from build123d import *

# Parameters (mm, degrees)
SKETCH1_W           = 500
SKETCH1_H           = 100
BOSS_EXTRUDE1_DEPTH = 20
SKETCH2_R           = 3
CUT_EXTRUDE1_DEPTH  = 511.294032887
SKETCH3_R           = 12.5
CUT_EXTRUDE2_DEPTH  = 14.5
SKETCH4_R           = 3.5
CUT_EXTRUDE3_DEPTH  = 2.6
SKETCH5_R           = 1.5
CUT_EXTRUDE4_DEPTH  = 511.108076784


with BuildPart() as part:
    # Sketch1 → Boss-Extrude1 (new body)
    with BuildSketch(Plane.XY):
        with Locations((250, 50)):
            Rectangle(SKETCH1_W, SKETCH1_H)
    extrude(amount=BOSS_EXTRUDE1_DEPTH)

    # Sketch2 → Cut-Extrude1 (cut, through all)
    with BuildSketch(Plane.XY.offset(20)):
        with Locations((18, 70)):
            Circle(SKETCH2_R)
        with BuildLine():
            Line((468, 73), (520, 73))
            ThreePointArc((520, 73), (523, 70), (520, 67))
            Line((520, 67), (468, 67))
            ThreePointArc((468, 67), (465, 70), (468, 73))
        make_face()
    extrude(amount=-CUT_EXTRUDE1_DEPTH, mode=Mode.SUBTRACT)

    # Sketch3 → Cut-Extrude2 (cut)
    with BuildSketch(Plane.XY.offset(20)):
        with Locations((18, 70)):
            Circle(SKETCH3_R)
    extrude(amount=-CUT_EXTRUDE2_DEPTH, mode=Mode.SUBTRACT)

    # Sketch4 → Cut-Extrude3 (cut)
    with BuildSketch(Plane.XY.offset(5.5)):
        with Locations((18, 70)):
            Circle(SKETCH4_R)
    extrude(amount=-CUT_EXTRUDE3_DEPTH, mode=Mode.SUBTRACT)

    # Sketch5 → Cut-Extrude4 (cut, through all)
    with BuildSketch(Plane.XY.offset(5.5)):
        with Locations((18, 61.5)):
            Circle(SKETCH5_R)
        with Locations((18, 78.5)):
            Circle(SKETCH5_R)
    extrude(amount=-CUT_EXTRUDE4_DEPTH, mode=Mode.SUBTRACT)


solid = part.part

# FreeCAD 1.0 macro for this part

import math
import FreeCAD as App
import Part
import Sketcher
from FreeCAD import Vector
Q = App.Units.Quantity

doc = App.newDocument("Part")
body = doc.addObject("PartDesign::Body", "Body")

# Sketch on XY plane
sketch1 = body.newObject("Sketcher::SketchObject", "Sketch")
sketch1.AttachmentSupport = (doc.getObject("XY_Plane"), [""])
sketch1.MapMode = "FlatFace"
sketch1.addGeometry([
    Part.LineSegment(Vector(0, 100, 0), Vector(0, 0, 0)),
    Part.LineSegment(Vector(0, 0, 0), Vector(500, 0, 0)),
    Part.LineSegment(Vector(500, 0, 0), Vector(500, 100, 0)),
    Part.LineSegment(Vector(500, 100, 0), Vector(0, 100, 0)),
], False)
sketch1.addConstraint([
    Sketcher.Constraint("Coincident", 0, 2, 1, 1),
    Sketcher.Constraint("Coincident", 1, 2, 2, 1),
    Sketcher.Constraint("Coincident", 2, 2, 3, 1),
    Sketcher.Constraint("Coincident", 3, 2, 0, 1),
    Sketcher.Constraint("Vertical", 0),
    Sketcher.Constraint("Horizontal", 1),
    Sketcher.Constraint("Vertical", 2),
    Sketcher.Constraint("Horizontal", 3),
    Sketcher.Constraint("Coincident", 0, 2, -1, 1),
    Sketcher.Constraint("DistanceX", 1, 1, 1, 2, Q("500 mm")),
    Sketcher.Constraint("DistanceY", 0, 2, 0, 1, Q("100 mm")),
])
pad1 = body.newObject("PartDesign::Pad", "Pad")
pad1.Profile = sketch1
pad1.Length = 20

# Sketch on XY plane
sketch2 = body.newObject("Sketcher::SketchObject", "Sketch001")
sketch2.AttachmentSupport = (doc.getObject("XY_Plane"), [""])
sketch2.MapMode = "FlatFace"
sketch2.AttachmentOffset = App.Placement(Vector(0, 0, 20), App.Rotation())
sketch2.addGeometry([
    Part.Circle(Vector(18, 70, 0), Vector(0, 0, 1), 3),  # 0
    Part.LineSegment(Vector(520, 73, 0), Vector(468, 73, 0)),  # 1
    Part.ArcOfCircle(Part.Circle(Vector(468, 70, 0), Vector(0, 0, 1), 3), math.radians(90), math.radians(270)),  # 2
    Part.LineSegment(Vector(468, 67, 0), Vector(520, 67, 0)),  # 3
    Part.ArcOfCircle(Part.Circle(Vector(520, 70, 0), Vector(0, 0, 1), 3), math.radians(-90), math.radians(90)),  # 4
], False)
sketch2.addConstraint([
    Sketcher.Constraint("Tangent", 1, 2, 2, 1),
    Sketcher.Constraint("Tangent", 2, 2, 3, 1),
    Sketcher.Constraint("Tangent", 3, 2, 4, 1),
    Sketcher.Constraint("Tangent", 4, 2, 1, 1),
    Sketcher.Constraint("Horizontal", 1),
    Sketcher.Constraint("Horizontal", 3),
    Sketcher.Constraint("Equal", 0, 2),
    Sketcher.Constraint("Horizontal", 0, 3, 2, 3),
    Sketcher.Constraint("Diameter", 0, Q("6 mm")),
    Sketcher.Constraint("DistanceX", 1, 2, 1, 1, Q("52 mm")),
    Sketcher.Constraint("DistanceX", -1, 1, 0, 3, Q("18 mm")),
    Sketcher.Constraint("DistanceY", -1, 1, 0, 3, Q("70 mm")),
    Sketcher.Constraint("DistanceX", -1, 1, 2, 3, Q("468 mm")),
])
pocket1 = body.newObject("PartDesign::Pocket", "Pocket")
pocket1.Profile = sketch2
pocket1.Type = "ThroughAll"

# Sketch on XY plane
sketch3 = body.newObject("Sketcher::SketchObject", "Sketch002")
sketch3.AttachmentSupport = (doc.getObject("XY_Plane"), [""])
sketch3.MapMode = "FlatFace"
sketch3.AttachmentOffset = App.Placement(Vector(0, 0, 20), App.Rotation())
sketch3.addGeometry(Part.Circle(Vector(18, 70, 0), Vector(0, 0, 1), 12), False)
sketch3.addConstraint([
    Sketcher.Constraint("Diameter", 0, Q("25 mm")),
    Sketcher.Constraint("DistanceX", -1, 1, 0, 3, Q("18 mm")),
    Sketcher.Constraint("DistanceY", -1, 1, 0, 3, Q("70 mm")),
])
pocket2 = body.newObject("PartDesign::Pocket", "Pocket001")
pocket2.Profile = sketch3
pocket2.Length = 14.5

# Sketch on XY plane
sketch4 = body.newObject("Sketcher::SketchObject", "Sketch003")
sketch4.AttachmentSupport = (doc.getObject("XY_Plane"), [""])
sketch4.MapMode = "FlatFace"
sketch4.AttachmentOffset = App.Placement(Vector(0, 0, 5.5), App.Rotation())
sketch4.addGeometry(Part.Circle(Vector(18, 70, 0), Vector(0, 0, 1), 3.5), False)
sketch4.addConstraint([
    Sketcher.Constraint("Diameter", 0, Q("7 mm")),
    Sketcher.Constraint("DistanceX", -1, 1, 0, 3, Q("18 mm")),
    Sketcher.Constraint("DistanceY", -1, 1, 0, 3, Q("70 mm")),
])
pocket3 = body.newObject("PartDesign::Pocket", "Pocket002")
pocket3.Profile = sketch4
pocket3.Length = 2.6

# Sketch on XY plane
sketch5 = body.newObject("Sketcher::SketchObject", "Sketch004")
sketch5.AttachmentSupport = (doc.getObject("XY_Plane"), [""])
sketch5.MapMode = "FlatFace"
sketch5.AttachmentOffset = App.Placement(Vector(0, 0, 5.5), App.Rotation())
sketch5.addGeometry([
    Part.Circle(Vector(18, 61.5, 0), Vector(0, 0, 1), 1.5),
    Part.Circle(Vector(18, 78.5, 0), Vector(0, 0, 1), 1.5),
], False)
sketch5.addConstraint([
    Sketcher.Constraint("Equal", 0, 1),
    Sketcher.Constraint("Vertical", 0, 3, 1, 3),
    Sketcher.Constraint("Diameter", 0, Q("3 mm")),
    Sketcher.Constraint("DistanceX", -1, 1, 0, 3, Q("18 mm")),
    Sketcher.Constraint("DistanceY", 0, 3, 1, 3, Q("17 mm")),
    Sketcher.Constraint("DistanceY", -1, 1, 0, 3, Q("61.5 mm")),
])
pocket4 = body.newObject("PartDesign::Pocket", "Pocket003")
pocket4.Profile = sketch5
pocket4.Type = "ThroughAll"

doc.recompute()
